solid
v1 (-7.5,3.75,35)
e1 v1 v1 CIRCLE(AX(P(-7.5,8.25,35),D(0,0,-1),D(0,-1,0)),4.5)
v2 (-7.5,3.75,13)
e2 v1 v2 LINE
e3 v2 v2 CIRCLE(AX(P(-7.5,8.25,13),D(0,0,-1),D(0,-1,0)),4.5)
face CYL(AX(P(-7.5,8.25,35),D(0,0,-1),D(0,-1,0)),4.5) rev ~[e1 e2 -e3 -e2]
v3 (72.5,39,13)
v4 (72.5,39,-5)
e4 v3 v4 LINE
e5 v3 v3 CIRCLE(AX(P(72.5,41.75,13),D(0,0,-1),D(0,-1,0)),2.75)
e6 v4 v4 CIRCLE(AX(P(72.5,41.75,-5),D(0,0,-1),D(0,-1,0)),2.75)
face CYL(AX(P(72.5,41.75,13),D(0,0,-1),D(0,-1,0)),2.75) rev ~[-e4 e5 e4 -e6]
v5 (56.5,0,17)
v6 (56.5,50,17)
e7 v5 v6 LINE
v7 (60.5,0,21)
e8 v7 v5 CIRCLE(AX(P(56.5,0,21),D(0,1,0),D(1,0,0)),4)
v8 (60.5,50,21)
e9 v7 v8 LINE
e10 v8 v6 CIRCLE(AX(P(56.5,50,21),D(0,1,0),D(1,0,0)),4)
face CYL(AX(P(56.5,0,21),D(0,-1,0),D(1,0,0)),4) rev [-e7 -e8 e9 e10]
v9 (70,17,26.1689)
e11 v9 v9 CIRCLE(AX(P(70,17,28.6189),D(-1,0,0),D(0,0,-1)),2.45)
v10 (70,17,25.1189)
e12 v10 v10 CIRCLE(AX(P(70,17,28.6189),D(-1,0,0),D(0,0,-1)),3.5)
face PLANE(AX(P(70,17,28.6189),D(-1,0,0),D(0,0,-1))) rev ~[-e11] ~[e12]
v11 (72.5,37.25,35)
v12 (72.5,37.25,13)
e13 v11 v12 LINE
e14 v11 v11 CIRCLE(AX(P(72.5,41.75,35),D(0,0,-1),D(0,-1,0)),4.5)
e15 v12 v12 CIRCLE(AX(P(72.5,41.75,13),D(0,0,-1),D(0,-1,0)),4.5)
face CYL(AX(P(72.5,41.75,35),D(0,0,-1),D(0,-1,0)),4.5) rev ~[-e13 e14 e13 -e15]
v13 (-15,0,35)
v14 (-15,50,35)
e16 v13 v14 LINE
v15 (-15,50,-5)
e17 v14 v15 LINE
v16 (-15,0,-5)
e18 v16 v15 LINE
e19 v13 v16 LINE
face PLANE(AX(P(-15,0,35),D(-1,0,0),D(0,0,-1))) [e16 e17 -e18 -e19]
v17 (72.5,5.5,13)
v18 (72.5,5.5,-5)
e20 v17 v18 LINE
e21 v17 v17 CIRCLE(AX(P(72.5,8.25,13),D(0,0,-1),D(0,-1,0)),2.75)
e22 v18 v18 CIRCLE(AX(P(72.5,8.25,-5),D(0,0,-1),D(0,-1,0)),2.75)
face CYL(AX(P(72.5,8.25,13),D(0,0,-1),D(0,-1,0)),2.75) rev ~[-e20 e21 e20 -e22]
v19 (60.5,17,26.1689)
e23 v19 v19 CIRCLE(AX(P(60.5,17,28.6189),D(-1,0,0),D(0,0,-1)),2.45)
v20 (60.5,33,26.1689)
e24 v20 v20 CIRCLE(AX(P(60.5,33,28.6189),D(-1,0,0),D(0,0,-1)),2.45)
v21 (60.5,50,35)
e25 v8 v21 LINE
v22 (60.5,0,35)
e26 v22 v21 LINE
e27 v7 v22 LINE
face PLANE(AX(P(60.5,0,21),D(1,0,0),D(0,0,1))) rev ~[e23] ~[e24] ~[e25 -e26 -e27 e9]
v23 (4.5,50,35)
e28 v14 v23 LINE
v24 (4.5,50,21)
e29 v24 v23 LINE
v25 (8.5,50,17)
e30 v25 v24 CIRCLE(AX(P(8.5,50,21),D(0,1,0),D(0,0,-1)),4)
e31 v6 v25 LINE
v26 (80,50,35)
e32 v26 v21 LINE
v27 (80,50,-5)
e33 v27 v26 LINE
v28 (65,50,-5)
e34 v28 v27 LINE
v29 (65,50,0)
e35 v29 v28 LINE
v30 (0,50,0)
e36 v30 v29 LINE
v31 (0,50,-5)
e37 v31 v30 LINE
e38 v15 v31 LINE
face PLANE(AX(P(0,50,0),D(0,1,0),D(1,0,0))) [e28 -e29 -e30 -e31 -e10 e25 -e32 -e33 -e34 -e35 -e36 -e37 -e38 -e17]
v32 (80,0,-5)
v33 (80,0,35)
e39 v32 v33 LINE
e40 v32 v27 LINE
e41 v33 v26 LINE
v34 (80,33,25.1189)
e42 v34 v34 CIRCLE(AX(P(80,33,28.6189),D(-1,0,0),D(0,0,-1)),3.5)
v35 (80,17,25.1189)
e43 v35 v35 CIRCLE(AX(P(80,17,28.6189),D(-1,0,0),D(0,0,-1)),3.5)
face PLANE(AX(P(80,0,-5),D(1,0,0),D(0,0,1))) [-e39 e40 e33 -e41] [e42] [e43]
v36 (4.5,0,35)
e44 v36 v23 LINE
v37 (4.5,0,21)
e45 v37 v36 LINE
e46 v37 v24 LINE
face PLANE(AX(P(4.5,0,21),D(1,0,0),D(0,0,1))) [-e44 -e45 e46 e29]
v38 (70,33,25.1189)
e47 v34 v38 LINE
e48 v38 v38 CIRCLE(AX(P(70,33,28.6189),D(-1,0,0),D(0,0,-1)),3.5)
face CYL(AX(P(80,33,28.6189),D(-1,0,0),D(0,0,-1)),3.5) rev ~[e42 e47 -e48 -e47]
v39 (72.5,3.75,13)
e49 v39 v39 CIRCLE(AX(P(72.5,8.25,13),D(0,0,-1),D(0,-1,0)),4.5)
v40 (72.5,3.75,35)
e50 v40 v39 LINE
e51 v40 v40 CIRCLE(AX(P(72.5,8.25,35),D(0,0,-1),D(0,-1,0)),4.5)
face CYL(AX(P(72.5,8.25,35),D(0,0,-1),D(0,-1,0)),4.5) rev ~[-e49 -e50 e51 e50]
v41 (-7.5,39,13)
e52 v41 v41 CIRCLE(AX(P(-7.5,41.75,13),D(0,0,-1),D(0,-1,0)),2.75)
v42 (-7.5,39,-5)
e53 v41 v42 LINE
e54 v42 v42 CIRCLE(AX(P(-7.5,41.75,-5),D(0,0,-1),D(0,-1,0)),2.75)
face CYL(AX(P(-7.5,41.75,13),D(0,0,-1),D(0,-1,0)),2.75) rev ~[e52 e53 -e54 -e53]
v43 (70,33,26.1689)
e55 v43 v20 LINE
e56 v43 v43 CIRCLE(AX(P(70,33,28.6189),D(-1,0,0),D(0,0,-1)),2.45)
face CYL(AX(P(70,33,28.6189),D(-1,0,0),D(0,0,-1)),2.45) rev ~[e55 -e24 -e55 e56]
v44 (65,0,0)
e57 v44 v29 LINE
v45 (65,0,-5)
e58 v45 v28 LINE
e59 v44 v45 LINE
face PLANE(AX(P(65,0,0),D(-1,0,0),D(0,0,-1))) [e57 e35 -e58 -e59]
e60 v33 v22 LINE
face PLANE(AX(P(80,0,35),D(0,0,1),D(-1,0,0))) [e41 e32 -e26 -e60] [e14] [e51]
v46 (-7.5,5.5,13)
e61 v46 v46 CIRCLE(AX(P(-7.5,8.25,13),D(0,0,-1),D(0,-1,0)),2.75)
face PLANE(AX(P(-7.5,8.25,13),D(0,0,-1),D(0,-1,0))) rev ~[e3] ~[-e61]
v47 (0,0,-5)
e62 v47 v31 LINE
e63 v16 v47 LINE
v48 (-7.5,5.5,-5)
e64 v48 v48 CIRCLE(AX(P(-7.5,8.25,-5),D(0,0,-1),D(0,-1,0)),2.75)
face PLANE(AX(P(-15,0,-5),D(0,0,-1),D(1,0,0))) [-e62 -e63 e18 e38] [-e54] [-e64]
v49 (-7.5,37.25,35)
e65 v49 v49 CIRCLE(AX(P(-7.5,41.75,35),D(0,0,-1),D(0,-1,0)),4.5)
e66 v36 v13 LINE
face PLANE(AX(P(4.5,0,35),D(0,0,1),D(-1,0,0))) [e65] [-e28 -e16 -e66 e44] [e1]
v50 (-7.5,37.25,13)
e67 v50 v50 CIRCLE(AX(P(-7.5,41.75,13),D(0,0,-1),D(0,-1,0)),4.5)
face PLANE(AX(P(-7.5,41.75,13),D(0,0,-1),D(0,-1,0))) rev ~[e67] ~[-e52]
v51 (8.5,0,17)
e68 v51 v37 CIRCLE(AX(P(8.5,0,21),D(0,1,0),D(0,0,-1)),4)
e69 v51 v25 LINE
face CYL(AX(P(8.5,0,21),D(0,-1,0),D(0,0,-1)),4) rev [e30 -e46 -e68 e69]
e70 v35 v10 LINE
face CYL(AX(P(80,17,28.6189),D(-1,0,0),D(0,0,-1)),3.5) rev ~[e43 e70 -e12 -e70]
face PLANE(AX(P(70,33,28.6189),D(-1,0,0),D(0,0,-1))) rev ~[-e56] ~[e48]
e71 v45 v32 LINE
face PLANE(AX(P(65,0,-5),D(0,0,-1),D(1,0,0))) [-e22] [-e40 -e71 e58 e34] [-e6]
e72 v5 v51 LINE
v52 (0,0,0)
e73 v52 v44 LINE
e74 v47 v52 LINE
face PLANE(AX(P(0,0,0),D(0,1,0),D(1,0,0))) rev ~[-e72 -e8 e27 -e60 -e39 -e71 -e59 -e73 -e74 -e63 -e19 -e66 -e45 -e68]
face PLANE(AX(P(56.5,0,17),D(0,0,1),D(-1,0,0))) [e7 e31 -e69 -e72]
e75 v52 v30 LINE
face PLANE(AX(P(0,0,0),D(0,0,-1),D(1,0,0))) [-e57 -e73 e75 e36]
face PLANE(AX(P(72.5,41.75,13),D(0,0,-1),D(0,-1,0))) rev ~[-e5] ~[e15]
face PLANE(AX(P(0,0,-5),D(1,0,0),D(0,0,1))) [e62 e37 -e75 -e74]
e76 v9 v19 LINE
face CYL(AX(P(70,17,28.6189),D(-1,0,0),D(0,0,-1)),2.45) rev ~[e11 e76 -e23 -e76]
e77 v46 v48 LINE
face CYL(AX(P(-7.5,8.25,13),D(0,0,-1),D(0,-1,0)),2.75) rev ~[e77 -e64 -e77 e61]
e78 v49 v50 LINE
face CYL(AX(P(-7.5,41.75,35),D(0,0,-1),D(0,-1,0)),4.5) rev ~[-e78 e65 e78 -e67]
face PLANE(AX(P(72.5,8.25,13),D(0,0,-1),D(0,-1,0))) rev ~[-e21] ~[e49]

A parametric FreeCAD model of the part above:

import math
import FreeCAD as App
import Part
import Sketcher

V = App.Vector
Q = App.Units.Quantity

doc = App.newDocument("Part")
body = doc.addObject("PartDesign::Body", "Body")

sketch1 = body.newObject("Sketcher::SketchObject", "Sketch")
sketch1.AttachmentSupport = (doc.getObject("XZ_Plane"), [""])
sketch1.MapMode = "FlatFace"
sketch1.addGeometry(Part.LineSegment(V(65, 0, 0), V(0, 0, 0)), False)
sketch1.addGeometry(Part.LineSegment(V(0, 0, 0), V(0, -5, 0)), False)
sketch1.addGeometry(Part.LineSegment(V(0, -5, 0), V(-15, -5, 0)), False)
sketch1.addGeometry(Part.LineSegment(V(-15, -5, 0), V(-15, 35, 0)), False)
sketch1.addGeometry(Part.LineSegment(V(-15, 35, 0), V(4.5, 35, 0)), False)
sketch1.addGeometry(Part.LineSegment(V(4.5, 35, 0), V(4.5, 21, 0)), False)
sketch1.addGeometry(Part.ArcOfCircle(Part.Circle(V(8.5, 21, 0), V(0, 0, 1), 4), math.radians(180), math.radians(270)), False)
sketch1.addGeometry(Part.LineSegment(V(8.5, 17, 0), V(56.5, 17, 0)), False)
sketch1.addGeometry(Part.ArcOfCircle(Part.Circle(V(56.5, 21, 0), V(0, 0, 1), 4), math.radians(-90), math.radians(0)), False)
sketch1.addGeometry(Part.LineSegment(V(60.5, 21, 0), V(60.5, 35, 0)), False)
sketch1.addGeometry(Part.LineSegment(V(60.5, 35, 0), V(80, 35, 0)), False)
sketch1.addGeometry(Part.LineSegment(V(80, 35, 0), V(80, -5, 0)), False)
sketch1.addGeometry(Part.LineSegment(V(80, -5, 0), V(65, -5, 0)), False)
sketch1.addGeometry(Part.LineSegment(V(65, -5, 0), V(65, 0, 0)), False)
sketch1.addConstraint(Sketcher.Constraint("Coincident", 0, 2, 1, 1))
sketch1.addConstraint(Sketcher.Constraint("Coincident", 1, 2, 2, 1))
sketch1.addConstraint(Sketcher.Constraint("Coincident", 2, 2, 3, 1))
sketch1.addConstraint(Sketcher.Constraint("Coincident", 3, 2, 4, 1))
sketch1.addConstraint(Sketcher.Constraint("Coincident", 4, 2, 5, 1))
sketch1.addConstraint(Sketcher.Constraint("Tangent", 5, 2, 6, 1))
sketch1.addConstraint(Sketcher.Constraint("Tangent", 6, 2, 7, 1))
sketch1.addConstraint(Sketcher.Constraint("Tangent", 7, 2, 8, 1))
sketch1.addConstraint(Sketcher.Constraint("Tangent", 8, 2, 9, 1))
sketch1.addConstraint(Sketcher.Constraint("Coincident", 9, 2, 10, 1))
sketch1.addConstraint(Sketcher.Constraint("Coincident", 10, 2, 11, 1))
sketch1.addConstraint(Sketcher.Constraint("Coincident", 11, 2, 12, 1))
sketch1.addConstraint(Sketcher.Constraint("Coincident", 12, 2, 13, 1))
sketch1.addConstraint(Sketcher.Constraint("Coincident", 13, 2, 0, 1))
sketch1.addConstraint(Sketcher.Constraint("Horizontal", 0))
sketch1.addConstraint(Sketcher.Constraint("Vertical", 1))
sketch1.addConstraint(Sketcher.Constraint("Horizontal", 2))
sketch1.addConstraint(Sketcher.Constraint("Vertical", 3))
sketch1.addConstraint(Sketcher.Constraint("Horizontal", 4))
sketch1.addConstraint(Sketcher.Constraint("Vertical", 5))
sketch1.addConstraint(Sketcher.Constraint("Horizontal", 7))
sketch1.addConstraint(Sketcher.Constraint("Vertical", 9))
sketch1.addConstraint(Sketcher.Constraint("Horizontal", 10))
sketch1.addConstraint(Sketcher.Constraint("Vertical", 11))
sketch1.addConstraint(Sketcher.Constraint("Horizontal", 12))
sketch1.addConstraint(Sketcher.Constraint("Vertical", 13))
sketch1.addConstraint(Sketcher.Constraint("Coincident", 0, 2, -1, 1))
sketch1.addConstraint(Sketcher.Constraint("Equal", 6, 8))
sketch1.addConstraint(Sketcher.Constraint("Horizontal", 4, 2, 9, 2))
sketch1.addConstraint(Sketcher.Constraint("Horizontal", 2, 2, 11, 2))
sketch1.addConstraint(Sketcher.Constraint("Equal", 4, 10))
sketch1.addConstraint(Sketcher.Constraint("Equal", 2, 12))
sketch1.addConstraint(Sketcher.Constraint("Radius", 6, Q("4 mm")))
sketch1.addConstraint(Sketcher.Constraint("DistanceX", 0, 2, 0, 1, Q("65 mm")))
sketch1.addConstraint(Sketcher.Constraint("DistanceY", -1, 1, 6, 2, Q("17 mm")))
sketch1.addConstraint(Sketcher.Constraint("DistanceX", 5, 2, 8, 2, Q("56 mm")))
sketch1.addConstraint(Sketcher.Constraint("DistanceX", 2, 2, 2, 1, Q("15 mm")))
sketch1.addConstraint(Sketcher.Constraint("DistanceY", 1, 2, 1, 1, Q("5 mm")))
sketch1.addConstraint(Sketcher.Constraint("DistanceY", 3, 1, 3, 2, Q("40 mm")))
pad1 = body.newObject("PartDesign::Pad", "Pad")
pad1.Profile = sketch1
pad1.Length = 50
pad1.Reversed = True

sketch2 = body.newObject("Sketcher::SketchObject", "Sketch001")
sketch2.AttachmentSupport = (doc.getObject("XY_Plane"), [""])
sketch2.MapMode = "FlatFace"
sketch2.AttachmentOffset = App.Placement(V(0, 0, 35), App.Rotation())
sketch2.addGeometry(Part.Circle(V(-7.5, 41.75, 0), V(0, 0, 1), 2.75), False)
sketch2.addGeometry(Part.Circle(V(72.5, 41.75, 0), V(0, 0, 1), 2.75), False)
sketch2.addGeometry(Part.Circle(V(72.5, 8.25, 0), V(0, 0, 1), 2.75), False)
sketch2.addGeometry(Part.Circle(V(-7.5, 8.25, 0), V(0, 0, 1), 2.75), False)
sketch2.addConstraint(Sketcher.Constraint("Equal", 0, 1))
sketch2.addConstraint(Sketcher.Constraint("Equal", 1, 2))
sketch2.addConstraint(Sketcher.Constraint("Equal", 2, 3))
sketch2.addConstraint(Sketcher.Constraint("Horizontal", 0, 3, 1, 3))
sketch2.addConstraint(Sketcher.Constraint("Horizontal", 2, 3, 3, 3))
sketch2.addConstraint(Sketcher.Constraint("Vertical", 1, 3, 2, 3))
sketch2.addConstraint(Sketcher.Constraint("Vertical", 0, 3, 3, 3))
sketch2.addConstraint(Sketcher.Constraint("Diameter", 0, Q("5.5 mm")))
sketch2.addConstraint(Sketcher.Constraint("DistanceX", 0, 3, 1, 3, Q("80 mm")))
sketch2.addConstraint(Sketcher.Constraint("DistanceX", 0, 3, -1, 1, Q("7.5 mm")))
sketch2.addConstraint(Sketcher.Constraint("DistanceY", 2, 3, 1, 3, Q("33.5 mm")))
sketch2.addConstraint(Sketcher.Constraint("DistanceY", -1, 1, 0, 3, Q("41.75 mm")))
doc.recompute()
hole = body.newObject("PartDesign::Hole", "Hole")
hole.Profile = sketch2
hole.ThreadType = "None"
hole.Diameter = 5.5
hole.DepthType = "Dimension"
hole.Depth = 40
hole.DrillPoint = "Angled"
hole.DrillPointAngle = 118
hole.HoleCutType = "Counterbore"
hole.HoleCutDiameter = 9
hole.HoleCutDepth = 22

sketch3 = body.newObject("Sketcher::SketchObject", "Sketch002")
sketch3.AttachmentSupport = (doc.getObject("YZ_Plane"), [""])
sketch3.MapMode = "FlatFace"
sketch3.AttachmentOffset = App.Placement(V(0, 0, 80), App.Rotation())
sketch3.addGeometry(Part.Circle(V(17, 28.6189, 0), V(0, 0, 1), 2.45), False)
sketch3.addGeometry(Part.Circle(V(33, 28.6189, 0), V(0, 0, 1), 2.45), False)
sketch3.addConstraint(Sketcher.Constraint("Equal", 0, 1))
sketch3.addConstraint(Sketcher.Constraint("Horizontal", 0, 3, 1, 3))
sketch3.addConstraint(Sketcher.Constraint("Diameter", 0, Q("4.9 mm")))
sketch3.addConstraint(Sketcher.Constraint("DistanceX", -1, 1, 0, 3, Q("17 mm")))
sketch3.addConstraint(Sketcher.Constraint("DistanceX", -1, 1, 1, 3, Q("33 mm")))
sketch3.addConstraint(Sketcher.Constraint("DistanceY", -1, 1, 0, 3, Q("28.619 mm")))
doc.recompute()
hole2 = body.newObject("PartDesign::Hole", "Hole001")
hole2.Profile = sketch3
hole2.ThreadType = "None"
hole2.Diameter = 4.9
hole2.DepthType = "Dimension"
hole2.Depth = 40
hole2.DrillPoint = "Angled"
hole2.DrillPointAngle = 118
hole2.HoleCutType = "Counterbore"
hole2.HoleCutDiameter = 7
hole2.HoleCutDepth = 10

doc.recompute()
